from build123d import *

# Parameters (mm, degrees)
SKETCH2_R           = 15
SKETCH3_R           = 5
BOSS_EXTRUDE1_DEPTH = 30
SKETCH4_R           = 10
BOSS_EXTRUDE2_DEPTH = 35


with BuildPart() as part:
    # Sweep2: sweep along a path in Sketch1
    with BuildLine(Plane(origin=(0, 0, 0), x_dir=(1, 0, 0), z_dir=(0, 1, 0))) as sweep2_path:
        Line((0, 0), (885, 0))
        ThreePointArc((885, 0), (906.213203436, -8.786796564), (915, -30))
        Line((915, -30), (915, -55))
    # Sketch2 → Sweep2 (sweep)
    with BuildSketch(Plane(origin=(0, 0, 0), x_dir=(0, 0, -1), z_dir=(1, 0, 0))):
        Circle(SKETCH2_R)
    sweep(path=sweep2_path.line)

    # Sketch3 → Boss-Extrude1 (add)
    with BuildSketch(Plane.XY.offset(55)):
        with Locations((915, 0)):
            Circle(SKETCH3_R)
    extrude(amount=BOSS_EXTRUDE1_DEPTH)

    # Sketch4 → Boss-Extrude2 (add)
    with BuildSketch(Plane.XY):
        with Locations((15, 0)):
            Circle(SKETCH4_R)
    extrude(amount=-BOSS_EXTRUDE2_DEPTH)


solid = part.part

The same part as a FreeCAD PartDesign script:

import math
import FreeCAD as App
import Part
import Sketcher
from FreeCAD import Vector

doc = App.newDocument("Part")
body = doc.addObject("PartDesign::Body", "Body")

# Sketch on YZ plane
sketch1 = doc.addObject("Sketcher::SketchObject", "Sketch")
body.addObject(sketch1)
sketch1.AttachmentSupport = (doc.YZ_Plane, [""])
sketch1.MapMode = "FlatFace"
sketch1.addGeometry(Part.Circle(Vector(0, 0, 0), Vector(0, 0, 1), 15), False)
sketch1.addConstraint([
    Sketcher.Constraint("Coincident", 0, 3, -1, 1),
    Sketcher.Constraint("Diameter", 0, 30.0),
])

# Sketch on XZ plane
sketch2 = doc.addObject("Sketcher::SketchObject", "Sketch001")
body.addObject(sketch2)
sketch2.AttachmentSupport = (doc.XZ_Plane, [""])
sketch2.MapMode = "FlatFace"
sketch2.addGeometry([
    Part.LineSegment(Vector(0, 0, 0), Vector(885, 0, 0)),
    Part.ArcOfCircle(Part.Circle(Vector(885, 30, 0), Vector(0, 0, 1), 30), math.radians(-90), math.radians(0)),
    Part.LineSegment(Vector(915, 30, 0), Vector(915, 55, 0)),
], False)
sketch2.addConstraint([
    Sketcher.Constraint("Tangent", 0, 2, 1, 1),
    Sketcher.Constraint("Tangent", 1, 2, 2, 1),
    Sketcher.Constraint("Horizontal", 0),
    Sketcher.Constraint("Vertical", 2),
    Sketcher.Constraint("Coincident", 0, 1, -1, 1),
    Sketcher.Constraint("Radius", 1, 30.0),
    Sketcher.Constraint("DistanceX", 0, 1, 0, 2, 885.0),
    Sketcher.Constraint("DistanceY", 2, 1, 2, 2, 25.0),
])
doc.recompute()

additivepipe = doc.addObject("PartDesign::AdditivePipe", "AdditivePipe")
body.addObject(additivepipe)
additivepipe.Profile = sketch1
additivepipe.Spine = (sketch2, ["Edge1", "Edge2", "Edge3"])

# Sketch on XY plane
sketch3 = doc.addObject("Sketcher::SketchObject", "Sketch002")
body.addObject(sketch3)
sketch3.AttachmentSupport = (doc.XY_Plane, [""])
sketch3.MapMode = "FlatFace"
sketch3.AttachmentOffset = App.Placement(Vector(0, 0, 55), App.Rotation())
sketch3.addGeometry(Part.Circle(Vector(915, 0, 0), Vector(0, 0, 1), 5), False)
sketch3.addConstraint([
    Sketcher.Constraint("PointOnObject", 0, 3, -1),
    Sketcher.Constraint("Diameter", 0, 10.0),
    Sketcher.Constraint("DistanceX", -1, 1, 0, 3, 915.0),
])
pad1 = doc.addObject("PartDesign::Pad", "Pad")
body.addObject(pad1)
pad1.Profile = sketch3
pad1.Length = 30

# Sketch on XY plane
sketch4 = doc.addObject("Sketcher::SketchObject", "Sketch003")
body.addObject(sketch4)
sketch4.AttachmentSupport = (doc.XY_Plane, [""])
sketch4.MapMode = "FlatFace"
sketch4.addGeometry(Part.Circle(Vector(15, 0, 0), Vector(0, 0, 1), 10), False)
sketch4.addConstraint([
    Sketcher.Constraint("PointOnObject", 0, 3, -1),
    Sketcher.Constraint("Diameter", 0, 20.0),
    Sketcher.Constraint("DistanceX", -1, 1, 0, 3, 15.0),
])
pad2 = doc.addObject("PartDesign::Pad", "Pad001")
body.addObject(pad2)
pad2.Profile = sketch4
pad2.Length = 35
pad2.Reversed = True

doc.recompute()
